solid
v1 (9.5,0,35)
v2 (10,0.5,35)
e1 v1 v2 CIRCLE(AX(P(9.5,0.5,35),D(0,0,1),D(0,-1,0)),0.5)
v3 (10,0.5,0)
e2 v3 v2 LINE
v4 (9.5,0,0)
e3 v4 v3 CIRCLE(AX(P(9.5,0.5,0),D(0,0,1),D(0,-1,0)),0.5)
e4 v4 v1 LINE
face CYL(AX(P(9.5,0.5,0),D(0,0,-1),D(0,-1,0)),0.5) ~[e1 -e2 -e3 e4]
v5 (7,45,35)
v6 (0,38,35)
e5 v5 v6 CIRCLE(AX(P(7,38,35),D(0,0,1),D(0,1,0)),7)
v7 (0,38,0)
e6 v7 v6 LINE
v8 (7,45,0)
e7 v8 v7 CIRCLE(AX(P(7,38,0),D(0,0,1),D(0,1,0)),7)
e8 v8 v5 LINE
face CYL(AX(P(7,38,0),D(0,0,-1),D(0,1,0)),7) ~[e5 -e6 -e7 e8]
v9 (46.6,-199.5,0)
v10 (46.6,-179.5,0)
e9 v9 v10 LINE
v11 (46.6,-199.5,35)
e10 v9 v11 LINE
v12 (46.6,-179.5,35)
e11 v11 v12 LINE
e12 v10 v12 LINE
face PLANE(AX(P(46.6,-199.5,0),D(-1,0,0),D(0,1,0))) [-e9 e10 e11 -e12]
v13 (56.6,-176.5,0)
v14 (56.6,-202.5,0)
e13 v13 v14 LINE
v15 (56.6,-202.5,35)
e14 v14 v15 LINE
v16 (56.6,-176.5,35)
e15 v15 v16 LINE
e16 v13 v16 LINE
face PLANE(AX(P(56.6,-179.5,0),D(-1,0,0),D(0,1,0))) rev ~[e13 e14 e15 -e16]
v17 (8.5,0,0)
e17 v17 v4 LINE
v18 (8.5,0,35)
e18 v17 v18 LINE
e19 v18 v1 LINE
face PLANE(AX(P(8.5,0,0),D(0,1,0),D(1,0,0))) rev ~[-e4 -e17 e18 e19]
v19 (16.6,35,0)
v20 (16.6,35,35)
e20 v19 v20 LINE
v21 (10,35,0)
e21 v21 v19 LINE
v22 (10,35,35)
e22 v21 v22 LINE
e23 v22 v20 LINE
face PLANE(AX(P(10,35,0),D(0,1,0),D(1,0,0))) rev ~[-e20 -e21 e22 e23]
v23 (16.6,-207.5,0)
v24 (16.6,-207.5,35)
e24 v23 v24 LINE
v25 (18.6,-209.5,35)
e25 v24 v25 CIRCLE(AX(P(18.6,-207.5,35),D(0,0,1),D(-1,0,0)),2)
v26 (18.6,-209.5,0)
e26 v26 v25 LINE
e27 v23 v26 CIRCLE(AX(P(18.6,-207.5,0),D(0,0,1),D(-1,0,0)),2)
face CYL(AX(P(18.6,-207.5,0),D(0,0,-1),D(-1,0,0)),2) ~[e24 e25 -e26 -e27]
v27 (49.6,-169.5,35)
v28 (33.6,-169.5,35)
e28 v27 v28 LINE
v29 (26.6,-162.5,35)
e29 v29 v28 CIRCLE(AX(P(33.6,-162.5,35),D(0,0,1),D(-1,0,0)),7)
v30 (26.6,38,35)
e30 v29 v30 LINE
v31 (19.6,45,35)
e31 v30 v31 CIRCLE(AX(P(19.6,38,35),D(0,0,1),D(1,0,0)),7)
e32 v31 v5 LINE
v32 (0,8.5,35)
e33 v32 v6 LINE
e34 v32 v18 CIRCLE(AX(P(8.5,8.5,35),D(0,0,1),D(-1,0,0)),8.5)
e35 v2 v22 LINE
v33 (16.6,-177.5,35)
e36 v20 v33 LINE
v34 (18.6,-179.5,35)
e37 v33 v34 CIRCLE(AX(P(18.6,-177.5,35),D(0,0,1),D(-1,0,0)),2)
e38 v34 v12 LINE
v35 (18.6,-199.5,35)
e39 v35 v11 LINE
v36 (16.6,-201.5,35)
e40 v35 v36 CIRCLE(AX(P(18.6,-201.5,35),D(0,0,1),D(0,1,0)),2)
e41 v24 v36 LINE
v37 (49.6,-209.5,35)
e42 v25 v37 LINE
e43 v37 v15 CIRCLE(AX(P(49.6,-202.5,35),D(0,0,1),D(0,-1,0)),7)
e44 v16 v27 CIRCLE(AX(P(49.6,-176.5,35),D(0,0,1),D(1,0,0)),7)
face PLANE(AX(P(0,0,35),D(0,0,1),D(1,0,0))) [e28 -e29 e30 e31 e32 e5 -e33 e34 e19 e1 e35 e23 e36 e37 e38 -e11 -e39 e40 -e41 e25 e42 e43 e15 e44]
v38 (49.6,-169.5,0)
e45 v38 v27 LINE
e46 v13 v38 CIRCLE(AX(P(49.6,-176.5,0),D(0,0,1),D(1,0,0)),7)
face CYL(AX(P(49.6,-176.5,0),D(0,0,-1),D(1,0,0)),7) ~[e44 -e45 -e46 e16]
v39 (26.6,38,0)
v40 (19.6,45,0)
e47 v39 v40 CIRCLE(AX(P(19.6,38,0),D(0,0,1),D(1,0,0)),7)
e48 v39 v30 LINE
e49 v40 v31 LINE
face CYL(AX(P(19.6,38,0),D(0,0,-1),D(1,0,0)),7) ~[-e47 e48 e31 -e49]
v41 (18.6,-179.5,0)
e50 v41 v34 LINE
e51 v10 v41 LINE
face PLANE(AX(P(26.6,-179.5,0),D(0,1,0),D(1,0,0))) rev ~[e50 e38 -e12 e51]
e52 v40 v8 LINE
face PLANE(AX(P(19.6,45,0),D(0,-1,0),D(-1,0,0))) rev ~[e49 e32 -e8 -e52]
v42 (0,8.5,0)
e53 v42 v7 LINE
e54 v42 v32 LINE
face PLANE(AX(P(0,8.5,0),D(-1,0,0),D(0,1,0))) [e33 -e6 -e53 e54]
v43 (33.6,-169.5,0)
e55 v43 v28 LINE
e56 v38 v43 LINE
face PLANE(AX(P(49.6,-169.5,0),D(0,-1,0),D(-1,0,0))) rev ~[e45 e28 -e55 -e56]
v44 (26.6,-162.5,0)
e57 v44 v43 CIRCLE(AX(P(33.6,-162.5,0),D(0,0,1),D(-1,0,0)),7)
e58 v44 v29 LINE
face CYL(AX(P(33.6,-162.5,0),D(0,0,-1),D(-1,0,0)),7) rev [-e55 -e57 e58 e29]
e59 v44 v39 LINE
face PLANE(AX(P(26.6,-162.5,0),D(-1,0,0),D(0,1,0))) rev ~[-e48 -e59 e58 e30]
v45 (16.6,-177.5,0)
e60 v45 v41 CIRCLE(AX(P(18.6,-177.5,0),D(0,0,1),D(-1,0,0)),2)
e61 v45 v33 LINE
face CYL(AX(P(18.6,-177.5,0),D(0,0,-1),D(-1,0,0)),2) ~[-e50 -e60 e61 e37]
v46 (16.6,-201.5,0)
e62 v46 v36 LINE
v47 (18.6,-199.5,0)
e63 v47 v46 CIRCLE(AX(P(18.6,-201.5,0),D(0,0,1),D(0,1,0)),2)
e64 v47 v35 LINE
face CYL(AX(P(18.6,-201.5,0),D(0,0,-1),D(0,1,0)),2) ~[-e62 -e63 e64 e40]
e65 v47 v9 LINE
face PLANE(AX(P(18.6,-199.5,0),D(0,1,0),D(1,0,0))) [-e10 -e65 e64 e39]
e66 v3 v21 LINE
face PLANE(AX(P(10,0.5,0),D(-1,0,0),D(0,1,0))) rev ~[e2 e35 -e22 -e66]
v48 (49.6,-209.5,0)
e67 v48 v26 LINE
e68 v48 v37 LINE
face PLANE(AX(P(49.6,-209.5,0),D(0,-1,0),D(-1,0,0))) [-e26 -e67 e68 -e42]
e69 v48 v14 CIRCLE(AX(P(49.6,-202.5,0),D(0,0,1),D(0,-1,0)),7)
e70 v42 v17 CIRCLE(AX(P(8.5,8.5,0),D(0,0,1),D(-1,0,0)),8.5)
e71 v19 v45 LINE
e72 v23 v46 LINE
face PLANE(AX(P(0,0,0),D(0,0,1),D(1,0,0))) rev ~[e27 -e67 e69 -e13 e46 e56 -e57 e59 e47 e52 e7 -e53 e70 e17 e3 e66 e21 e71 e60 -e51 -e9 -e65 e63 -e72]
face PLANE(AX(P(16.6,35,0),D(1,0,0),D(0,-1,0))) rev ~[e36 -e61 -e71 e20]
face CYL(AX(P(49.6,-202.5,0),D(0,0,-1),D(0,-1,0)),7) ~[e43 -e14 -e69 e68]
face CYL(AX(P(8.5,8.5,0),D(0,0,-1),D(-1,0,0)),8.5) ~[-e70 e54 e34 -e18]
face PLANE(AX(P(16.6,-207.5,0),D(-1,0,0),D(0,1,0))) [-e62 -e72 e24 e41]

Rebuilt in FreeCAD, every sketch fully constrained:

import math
import FreeCAD as App
import Part
import Sketcher
from FreeCAD import Vector

doc = App.newDocument("Part")
body = doc.addObject("PartDesign::Body", "Body")

sketch1 = body.newObject("Sketcher::SketchObject", "Sketch")
sketch1.AttachmentSupport = (doc.getObject("XY_Plane"), [""])
sketch1.MapMode = "FlatFace"
sketch1.addGeometry([
    Part.LineSegment(Vector(0, 38, 0), Vector(0, 8.5, 0)),
    Part.ArcOfCircle(Part.Circle(Vector(8.5, 8.5, 0), Vector(0, 0, 1), 8.5), math.radians(180), math.radians(270)),
    Part.LineSegment(Vector(8.5, 0, 0), Vector(9.5, 0, 0)),
    Part.ArcOfCircle(Part.Circle(Vector(9.5, 0.5, 0), Vector(0, 0, 1), 0.5), math.radians(-90), math.radians(0)),
    Part.LineSegment(Vector(10, 0.5, 0), Vector(10, 35, 0)),
    Part.LineSegment(Vector(10, 35, 0), Vector(16.6, 35, 0)),
    Part.LineSegment(Vector(16.6, 35, 0), Vector(16.6, -177.5, 0)),
    Part.ArcOfCircle(Part.Circle(Vector(18.6, -177.5, 0), Vector(0, 0, 1), 2), math.radians(180), math.radians(270)),
    Part.LineSegment(Vector(18.6, -179.5, 0), Vector(46.6, -179.5, 0)),
    Part.LineSegment(Vector(46.6, -179.5, 0), Vector(46.6, -199.5, 0)),
    Part.LineSegment(Vector(46.6, -199.5, 0), Vector(18.6, -199.5, 0)),
    Part.ArcOfCircle(Part.Circle(Vector(18.6, -201.5, 0), Vector(0, 0, 1), 2), math.radians(90), math.radians(180)),
    Part.LineSegment(Vector(16.6, -201.5, 0), Vector(16.6, -207.5, 0)),
    Part.ArcOfCircle(Part.Circle(Vector(18.6, -207.5, 0), Vector(0, 0, 1), 2), math.radians(180), math.radians(270)),
    Part.LineSegment(Vector(18.6, -209.5, 0), Vector(49.6, -209.5, 0)),
    Part.ArcOfCircle(Part.Circle(Vector(49.6, -202.5, 0), Vector(0, 0, 1), 7), math.radians(-90), math.radians(0)),
    Part.LineSegment(Vector(56.6, -202.5, 0), Vector(56.6, -176.5, 0)),
    Part.ArcOfCircle(Part.Circle(Vector(49.6, -176.5, 0), Vector(0, 0, 1), 7), math.radians(0), math.radians(90)),
    Part.LineSegment(Vector(49.6, -169.5, 0), Vector(33.6, -169.5, 0)),
    Part.ArcOfCircle(Part.Circle(Vector(33.6, -162.5, 0), Vector(0, 0, 1), 7), math.radians(180), math.radians(270)),
    Part.LineSegment(Vector(26.6, -162.5, 0), Vector(26.6, 38, 0)),
    Part.ArcOfCircle(Part.Circle(Vector(19.6, 38, 0), Vector(0, 0, 1), 7), math.radians(0), math.radians(90)),
    Part.LineSegment(Vector(19.6, 45, 0), Vector(7, 45, 0)),
    Part.ArcOfCircle(Part.Circle(Vector(7, 38, 0), Vector(0, 0, 1), 7), math.radians(90), math.radians(180)),
], False)
sketch1.addConstraint([
    Sketcher.Constraint("Tangent", 0, 2, 1, 1),
    Sketcher.Constraint("Tangent", 1, 2, 2, 1),
    Sketcher.Constraint("Tangent", 2, 2, 3, 1),
    Sketcher.Constraint("Tangent", 3, 2, 4, 1),
    Sketcher.Constraint("Coincident", 4, 2, 5, 1),
    Sketcher.Constraint("Coincident", 5, 2, 6, 1),
    Sketcher.Constraint("Tangent", 6, 2, 7, 1),
    Sketcher.Constraint("Tangent", 7, 2, 8, 1),
    Sketcher.Constraint("Coincident", 8, 2, 9, 1),
    Sketcher.Constraint("Coincident", 9, 2, 10, 1),
    Sketcher.Constraint("Tangent", 10, 2, 11, 1),
    Sketcher.Constraint("Tangent", 11, 2, 12, 1),
    Sketcher.Constraint("Tangent", 12, 2, 13, 1),
    Sketcher.Constraint("Tangent", 13, 2, 14, 1),
    Sketcher.Constraint("Tangent", 14, 2, 15, 1),
    Sketcher.Constraint("Tangent", 15, 2, 16, 1),
    Sketcher.Constraint("Tangent", 16, 2, 17, 1),
    Sketcher.Constraint("Tangent", 17, 2, 18, 1),
    Sketcher.Constraint("Tangent", 18, 2, 19, 2),
    Sketcher.Constraint("Tangent", 19, 1, 20, 1),
    Sketcher.Constraint("Tangent", 20, 2, 21, 1),
    Sketcher.Constraint("Tangent", 21, 2, 22, 1),
    Sketcher.Constraint("Tangent", 22, 2, 23, 1),
    Sketcher.Constraint("Tangent", 23, 2, 0, 1),
    Sketcher.Constraint("Vertical", 0),
    Sketcher.Constraint("Horizontal", 2),
    Sketcher.Constraint("Vertical", 4),
    Sketcher.Constraint("Horizontal", 5),
    Sketcher.Constraint("Vertical", 6),
    Sketcher.Constraint("Horizontal", 8),
    Sketcher.Constraint("Vertical", 9),
    Sketcher.Constraint("Horizontal", 10),
    Sketcher.Constraint("Vertical", 12),
    Sketcher.Constraint("Horizontal", 14),
    Sketcher.Constraint("Vertical", 16),
    Sketcher.Constraint("Horizontal", 18),
    Sketcher.Constraint("Vertical", 20),
    Sketcher.Constraint("Horizontal", 22),
    Sketcher.Constraint("Equal", 7, 11),
    Sketcher.Constraint("Equal", 11, 13),
    Sketcher.Constraint("Equal", 15, 17),
    Sketcher.Constraint("Equal", 17, 19),
    Sketcher.Constraint("Equal", 19, 21),
    Sketcher.Constraint("Equal", 21, 23),
    Sketcher.Constraint("PointOnObject", 0, 2, -2),
    Sketcher.Constraint("PointOnObject", 1, 2, -1),
    Sketcher.Constraint("Vertical", 7, 3, 11, 3),
    Sketcher.Constraint("Radius", 7, 2.0),
    Sketcher.Constraint("Radius", 15, 7.0),
    Sketcher.Constraint("Radius", 1, 8.5),
    Sketcher.Constraint("Radius", 3, 0.5),
    Sketcher.Constraint("DistanceX", 5, 1, 5, 2, 6.6),
    Sketcher.Constraint("DistanceX", -1, 1, 3, 2, 10.0),
    Sketcher.Constraint("DistanceY", -1, 1, 4, 2, 35.0),
    Sketcher.Constraint("DistanceY", -1, 1, 21, 2, 45.0),
    Sketcher.Constraint("DistanceY", 13, 3, 7, 3, 30.0),
    Sketcher.Constraint("DistanceY", 13, 3, 19, 3, 45.0),
    Sketcher.Constraint("DistanceX", 21, 3, 17, 3, 30.0),
    Sketcher.Constraint("DistanceY", 13, 2, 10, 2, 10.0),
    Sketcher.Constraint("DistanceX", 9, 2, 15, 2, 10.0),
    Sketcher.Constraint("DistanceX", 6, 2, 19, 1, 10.0),
    Sketcher.Constraint("DistanceY", 17, 3, 21, 3, 214.5),
])
pad1 = body.newObject("PartDesign::Pad", "Pad")
pad1.Profile = sketch1
pad1.Length = 35

doc.recompute()
